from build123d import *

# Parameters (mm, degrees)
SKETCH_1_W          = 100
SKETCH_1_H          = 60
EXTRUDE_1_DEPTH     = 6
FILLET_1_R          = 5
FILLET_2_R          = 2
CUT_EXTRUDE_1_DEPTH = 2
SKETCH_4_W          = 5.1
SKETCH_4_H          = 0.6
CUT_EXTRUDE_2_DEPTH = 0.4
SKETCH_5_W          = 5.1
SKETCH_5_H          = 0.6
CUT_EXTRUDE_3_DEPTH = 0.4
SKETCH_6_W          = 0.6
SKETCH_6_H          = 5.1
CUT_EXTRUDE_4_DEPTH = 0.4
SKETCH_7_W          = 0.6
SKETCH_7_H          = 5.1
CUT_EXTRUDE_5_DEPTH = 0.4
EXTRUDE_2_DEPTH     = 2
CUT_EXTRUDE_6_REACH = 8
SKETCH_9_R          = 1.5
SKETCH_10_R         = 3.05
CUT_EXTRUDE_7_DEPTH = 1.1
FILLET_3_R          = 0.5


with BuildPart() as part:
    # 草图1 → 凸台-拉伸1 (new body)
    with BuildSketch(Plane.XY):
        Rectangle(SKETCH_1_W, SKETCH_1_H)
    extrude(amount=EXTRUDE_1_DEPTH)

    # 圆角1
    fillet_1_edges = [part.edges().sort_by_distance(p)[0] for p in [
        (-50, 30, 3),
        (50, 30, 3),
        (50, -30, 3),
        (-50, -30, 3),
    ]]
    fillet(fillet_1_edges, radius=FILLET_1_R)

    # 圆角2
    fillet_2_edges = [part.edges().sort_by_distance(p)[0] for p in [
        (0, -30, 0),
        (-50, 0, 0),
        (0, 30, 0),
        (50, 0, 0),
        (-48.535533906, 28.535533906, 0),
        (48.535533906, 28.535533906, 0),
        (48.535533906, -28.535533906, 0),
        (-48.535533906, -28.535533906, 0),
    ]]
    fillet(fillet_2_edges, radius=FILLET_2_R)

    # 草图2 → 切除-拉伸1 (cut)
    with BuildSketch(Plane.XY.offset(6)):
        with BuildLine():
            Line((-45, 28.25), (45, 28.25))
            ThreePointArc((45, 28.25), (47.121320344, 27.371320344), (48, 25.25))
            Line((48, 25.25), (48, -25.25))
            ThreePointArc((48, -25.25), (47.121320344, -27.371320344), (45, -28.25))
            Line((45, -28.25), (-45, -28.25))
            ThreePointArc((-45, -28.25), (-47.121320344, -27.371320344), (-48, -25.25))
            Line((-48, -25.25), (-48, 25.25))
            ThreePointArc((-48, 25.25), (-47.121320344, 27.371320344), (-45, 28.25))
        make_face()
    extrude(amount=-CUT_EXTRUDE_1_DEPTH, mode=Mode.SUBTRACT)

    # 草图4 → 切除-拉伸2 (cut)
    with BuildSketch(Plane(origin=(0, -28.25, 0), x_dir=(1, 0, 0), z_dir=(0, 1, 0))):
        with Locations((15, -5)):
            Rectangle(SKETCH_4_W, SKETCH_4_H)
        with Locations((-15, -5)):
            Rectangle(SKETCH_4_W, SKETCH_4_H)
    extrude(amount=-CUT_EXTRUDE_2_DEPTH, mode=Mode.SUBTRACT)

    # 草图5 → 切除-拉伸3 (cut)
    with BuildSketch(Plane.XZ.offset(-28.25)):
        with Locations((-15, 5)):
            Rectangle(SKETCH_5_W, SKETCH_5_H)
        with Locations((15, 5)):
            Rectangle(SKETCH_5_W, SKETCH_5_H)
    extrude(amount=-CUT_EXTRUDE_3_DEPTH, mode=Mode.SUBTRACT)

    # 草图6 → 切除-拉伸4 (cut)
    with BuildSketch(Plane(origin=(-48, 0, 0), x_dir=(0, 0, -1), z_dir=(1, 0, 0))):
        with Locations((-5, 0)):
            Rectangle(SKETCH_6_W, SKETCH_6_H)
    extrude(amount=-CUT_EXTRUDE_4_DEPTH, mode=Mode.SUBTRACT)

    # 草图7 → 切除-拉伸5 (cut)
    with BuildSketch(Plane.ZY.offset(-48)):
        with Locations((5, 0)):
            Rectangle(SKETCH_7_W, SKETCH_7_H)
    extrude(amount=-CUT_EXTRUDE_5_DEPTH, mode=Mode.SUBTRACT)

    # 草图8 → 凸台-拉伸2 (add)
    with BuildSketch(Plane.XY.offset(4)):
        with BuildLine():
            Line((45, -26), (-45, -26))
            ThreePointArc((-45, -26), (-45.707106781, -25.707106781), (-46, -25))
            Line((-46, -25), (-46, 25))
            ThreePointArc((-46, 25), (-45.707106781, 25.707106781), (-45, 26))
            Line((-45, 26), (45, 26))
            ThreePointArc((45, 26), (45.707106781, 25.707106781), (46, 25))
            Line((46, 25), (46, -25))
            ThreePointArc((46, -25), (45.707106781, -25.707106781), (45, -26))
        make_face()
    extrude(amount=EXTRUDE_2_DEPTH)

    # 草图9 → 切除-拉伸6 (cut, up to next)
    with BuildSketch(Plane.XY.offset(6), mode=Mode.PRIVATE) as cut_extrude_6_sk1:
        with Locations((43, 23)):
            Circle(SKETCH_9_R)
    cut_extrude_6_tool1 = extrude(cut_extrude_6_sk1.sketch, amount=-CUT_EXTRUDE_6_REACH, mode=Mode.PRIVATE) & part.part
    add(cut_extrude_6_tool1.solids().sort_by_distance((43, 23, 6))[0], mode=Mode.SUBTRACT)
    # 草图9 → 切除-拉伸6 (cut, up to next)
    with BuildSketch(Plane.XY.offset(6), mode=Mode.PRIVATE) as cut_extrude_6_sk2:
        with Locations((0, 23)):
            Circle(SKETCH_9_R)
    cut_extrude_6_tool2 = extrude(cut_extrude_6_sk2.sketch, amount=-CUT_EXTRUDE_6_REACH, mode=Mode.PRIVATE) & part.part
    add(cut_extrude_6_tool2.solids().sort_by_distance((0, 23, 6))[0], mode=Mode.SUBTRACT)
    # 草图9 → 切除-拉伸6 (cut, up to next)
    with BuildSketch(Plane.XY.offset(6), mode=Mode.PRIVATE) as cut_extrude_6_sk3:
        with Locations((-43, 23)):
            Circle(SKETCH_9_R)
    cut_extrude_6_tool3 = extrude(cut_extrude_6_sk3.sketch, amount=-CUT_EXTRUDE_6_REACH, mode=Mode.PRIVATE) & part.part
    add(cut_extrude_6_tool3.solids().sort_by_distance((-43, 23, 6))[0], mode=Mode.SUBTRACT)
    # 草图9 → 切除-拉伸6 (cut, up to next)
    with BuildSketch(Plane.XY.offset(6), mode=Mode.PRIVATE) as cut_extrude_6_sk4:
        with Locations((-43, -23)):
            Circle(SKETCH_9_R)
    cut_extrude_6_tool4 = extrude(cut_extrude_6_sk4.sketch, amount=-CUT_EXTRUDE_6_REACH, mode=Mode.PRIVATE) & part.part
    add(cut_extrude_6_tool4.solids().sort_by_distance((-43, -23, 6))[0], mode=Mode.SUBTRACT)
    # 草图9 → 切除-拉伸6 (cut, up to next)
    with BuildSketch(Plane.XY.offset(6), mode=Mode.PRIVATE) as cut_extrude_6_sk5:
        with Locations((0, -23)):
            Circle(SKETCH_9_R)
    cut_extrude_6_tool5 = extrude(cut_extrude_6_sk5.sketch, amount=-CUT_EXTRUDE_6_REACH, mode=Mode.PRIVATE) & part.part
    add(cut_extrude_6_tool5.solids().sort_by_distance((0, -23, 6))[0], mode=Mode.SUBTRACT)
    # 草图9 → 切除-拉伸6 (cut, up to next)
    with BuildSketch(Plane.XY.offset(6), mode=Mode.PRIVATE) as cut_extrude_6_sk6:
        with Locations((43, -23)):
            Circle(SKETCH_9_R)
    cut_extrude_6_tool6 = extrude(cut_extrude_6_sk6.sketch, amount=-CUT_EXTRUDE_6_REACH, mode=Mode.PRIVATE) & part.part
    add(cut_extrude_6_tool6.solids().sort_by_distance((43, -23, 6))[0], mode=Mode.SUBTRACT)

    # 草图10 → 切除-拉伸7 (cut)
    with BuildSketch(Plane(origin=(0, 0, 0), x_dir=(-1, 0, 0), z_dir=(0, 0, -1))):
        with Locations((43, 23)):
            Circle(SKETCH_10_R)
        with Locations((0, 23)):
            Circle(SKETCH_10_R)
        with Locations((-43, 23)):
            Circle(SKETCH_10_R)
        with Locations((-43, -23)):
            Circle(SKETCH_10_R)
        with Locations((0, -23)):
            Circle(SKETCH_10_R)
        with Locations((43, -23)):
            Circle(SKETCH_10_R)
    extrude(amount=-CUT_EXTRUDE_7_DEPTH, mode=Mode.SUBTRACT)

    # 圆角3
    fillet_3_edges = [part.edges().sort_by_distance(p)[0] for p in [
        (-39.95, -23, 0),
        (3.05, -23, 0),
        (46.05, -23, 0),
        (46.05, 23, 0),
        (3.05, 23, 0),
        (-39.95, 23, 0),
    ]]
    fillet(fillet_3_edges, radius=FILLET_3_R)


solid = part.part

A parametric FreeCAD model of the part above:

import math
import FreeCAD as App
import Part
import Sketcher
Q = App.Units.Quantity


def edges_at(feature, points):
    """Names of the edges that pass closest to the given points."""
    edges = feature.Shape.Edges
    near = lambda p: min(range(len(edges)), key=lambda i: edges[i].distToShape(Part.Vertex(*p))[0])
    return sorted({f"Edge{near(p) + 1}" for p in points})

doc = App.newDocument("Part")
body = doc.addObject("PartDesign::Body", "Body")

sketch1 = body.newObject("Sketcher::SketchObject", "Sketch")
sketch1.AttachmentSupport = (doc.getObject("XY_Plane"), [""])
sketch1.MapMode = "FlatFace"
sketch1.addGeometry([
    Part.LineSegment(App.Vector(-50, 30, 0), App.Vector(-50, -30, 0)),
    Part.LineSegment(App.Vector(-50, -30, 0), App.Vector(50, -30, 0)),
    Part.LineSegment(App.Vector(50, -30, 0), App.Vector(50, 30, 0)),
    Part.LineSegment(App.Vector(50, 30, 0), App.Vector(-50, 30, 0)),
], False)
sketch1.addConstraint([
    Sketcher.Constraint("Coincident", 0, 2, 1, 1),
    Sketcher.Constraint("Coincident", 1, 2, 2, 1),
    Sketcher.Constraint("Coincident", 2, 2, 3, 1),
    Sketcher.Constraint("Coincident", 3, 2, 0, 1),
    Sketcher.Constraint("Vertical", 0),
    Sketcher.Constraint("Horizontal", 1),
    Sketcher.Constraint("Vertical", 2),
    Sketcher.Constraint("Horizontal", 3),
    Sketcher.Constraint("Symmetric", 0, 2, 2, 2, -1, 1),
    Sketcher.Constraint("DistanceX", 1, 1, 1, 2, Q("100 mm")),
    Sketcher.Constraint("DistanceY", 0, 2, 0, 1, Q("60 mm")),
])
pad1 = body.newObject("PartDesign::Pad", "Pad")
pad1.Profile = sketch1
pad1.Length = 6
doc.recompute()

fillet = body.newObject("PartDesign::Fillet", "Fillet")
fillet.Base = (pad1, edges_at(pad1, [
    (-50, 30, 3),
    (50, 30, 3),
    (50, -30, 3),
    (-50, -30, 3),
]))
fillet.Radius = 5
doc.recompute()

fillet2 = body.newObject("PartDesign::Fillet", "Fillet001")
fillet2.Base = (fillet, edges_at(fillet, [
    (0, -30, 0),
    (-50, 0, 0),
    (0, 30, 0),
    (50, 0, 0),
    (-48.536, 28.536, 0),
    (48.536, 28.536, 0),
    (48.536, -28.536, 0),
    (-48.536, -28.536, 0),
]))
fillet2.Radius = 2

sketch2 = body.newObject("Sketcher::SketchObject", "Sketch001")
sketch2.AttachmentSupport = (doc.getObject("XY_Plane"), [""])
sketch2.MapMode = "FlatFace"
sketch2.AttachmentOffset = App.Placement(App.Vector(0, 0, 6), App.Rotation())
sketch2.addGeometry([
    Part.LineSegment(App.Vector(45, 28.25, 0), App.Vector(-45, 28.25, 0)),
    Part.ArcOfCircle(Part.Circle(App.Vector(-45, 25.25, 0), App.Vector(0, 0, 1), 3), math.radians(90), math.radians(180)),
    Part.LineSegment(App.Vector(-48, 25.25, 0), App.Vector(-48, -25.25, 0)),
    Part.ArcOfCircle(Part.Circle(App.Vector(-45, -25.25, 0), App.Vector(0, 0, 1), 3), math.radians(180), math.radians(270)),
    Part.LineSegment(App.Vector(-45, -28.25, 0), App.Vector(45, -28.25, 0)),
    Part.ArcOfCircle(Part.Circle(App.Vector(45, -25.25, 0), App.Vector(0, 0, 1), 3), math.radians(-90), math.radians(0)),
    Part.LineSegment(App.Vector(48, -25.25, 0), App.Vector(48, 25.25, 0)),
    Part.ArcOfCircle(Part.Circle(App.Vector(45, 25.25, 0), App.Vector(0, 0, 1), 3), math.radians(0), math.radians(90)),
], False)
sketch2.addConstraint([
    Sketcher.Constraint("Tangent", 0, 2, 1, 1),
    Sketcher.Constraint("Tangent", 1, 2, 2, 1),
    Sketcher.Constraint("Tangent", 2, 2, 3, 1),
    Sketcher.Constraint("Tangent", 3, 2, 4, 1),
    Sketcher.Constraint("Tangent", 4, 2, 5, 1),
    Sketcher.Constraint("Tangent", 5, 2, 6, 1),
    Sketcher.Constraint("Tangent", 6, 2, 7, 1),
    Sketcher.Constraint("Tangent", 7, 2, 0, 1),
    Sketcher.Constraint("Horizontal", 0),
    Sketcher.Constraint("Vertical", 2),
    Sketcher.Constraint("Horizontal", 4),
    Sketcher.Constraint("Vertical", 6),
    Sketcher.Constraint("Equal", 1, 3),
    Sketcher.Constraint("Equal", 3, 5),
    Sketcher.Constraint("Equal", 5, 7),
    Sketcher.Constraint("Symmetric", 1, 3, 5, 3, -1, 1),
    Sketcher.Constraint("Radius", 1, Q("3 mm")),
    Sketcher.Constraint("DistanceX", 0, 2, 0, 1, Q("90 mm")),
    Sketcher.Constraint("DistanceY", 2, 2, 2, 1, Q("50.5 mm")),
])
pocket1 = body.newObject("PartDesign::Pocket", "Pocket")
pocket1.Profile = sketch2
pocket1.Length = 2

sketch3 = body.newObject("Sketcher::SketchObject", "Sketch002")
sketch3.AttachmentSupport = (doc.getObject("XZ_Plane"), [""])
sketch3.MapMode = "FlatFace"
sketch3.AttachmentOffset = App.Placement(App.Vector(0, 0, 28.25), App.Rotation())
sketch3.addGeometry([
    Part.LineSegment(App.Vector(12.45, 4.7, 0), App.Vector(12.45, 5.3, 0)),
    Part.LineSegment(App.Vector(12.45, 5.3, 0), App.Vector(17.55, 5.3, 0)),
    Part.LineSegment(App.Vector(17.55, 5.3, 0), App.Vector(17.55, 4.7, 0)),
    Part.LineSegment(App.Vector(17.55, 4.7, 0), App.Vector(12.45, 4.7, 0)),
    Part.LineSegment(App.Vector(-17.55, 4.7, 0), App.Vector(-17.55, 5.3, 0)),
    Part.LineSegment(App.Vector(-17.55, 5.3, 0), App.Vector(-12.45, 5.3, 0)),
    Part.LineSegment(App.Vector(-12.45, 5.3, 0), App.Vector(-12.45, 4.7, 0)),
    Part.LineSegment(App.Vector(-12.45, 4.7, 0), App.Vector(-17.55, 4.7, 0)),
], False)
sketch3.addConstraint([
    Sketcher.Constraint("Coincident", 0, 2, 1, 1),
    Sketcher.Constraint("Coincident", 1, 2, 2, 1),
    Sketcher.Constraint("Coincident", 2, 2, 3, 1),
    Sketcher.Constraint("Coincident", 3, 2, 0, 1),
    Sketcher.Constraint("Coincident", 4, 2, 5, 1),
    Sketcher.Constraint("Coincident", 5, 2, 6, 1),
    Sketcher.Constraint("Coincident", 6, 2, 7, 1),
    Sketcher.Constraint("Coincident", 7, 2, 4, 1),
    Sketcher.Constraint("Vertical", 0),
    Sketcher.Constraint("Horizontal", 1),
    Sketcher.Constraint("Vertical", 2),
    Sketcher.Constraint("Horizontal", 3),
    Sketcher.Constraint("Vertical", 4),
    Sketcher.Constraint("Horizontal", 5),
    Sketcher.Constraint("Vertical", 6),
    Sketcher.Constraint("Horizontal", 7),
    Sketcher.Constraint("Symmetric", 1, 2, 4, 2, -2),
    Sketcher.Constraint("Symmetric", 3, 2, 6, 2, -2),
    Sketcher.Constraint("DistanceX", 1, 1, 1, 2, Q("5.1 mm")),
    Sketcher.Constraint("DistanceY", 0, 1, 0, 2, Q("0.6 mm")),
    Sketcher.Constraint("DistanceX", 4, 2, 0, 2, Q("30 mm")),
    Sketcher.Constraint("DistanceY", -1, 1, 0, 2, Q("5.3 mm")),
])
pocket2 = body.newObject("PartDesign::Pocket", "Pocket001")
pocket2.Profile = sketch3
pocket2.Length = 0.4
pocket2.Reversed = True

sketch4 = body.newObject("Sketcher::SketchObject", "Sketch003")
sketch4.AttachmentSupport = (doc.getObject("XZ_Plane"), [""])
sketch4.MapMode = "FlatFace"
sketch4.AttachmentOffset = App.Placement(App.Vector(0, 0, -28.25), App.Rotation())
sketch4.addGeometry([
    Part.LineSegment(App.Vector(-17.55, 5.3, 0), App.Vector(-17.55, 4.7, 0)),
    Part.LineSegment(App.Vector(-17.55, 4.7, 0), App.Vector(-12.45, 4.7, 0)),
    Part.LineSegment(App.Vector(-12.45, 4.7, 0), App.Vector(-12.45, 5.3, 0)),
    Part.LineSegment(App.Vector(-12.45, 5.3, 0), App.Vector(-17.55, 5.3, 0)),
    Part.LineSegment(App.Vector(12.45, 5.3, 0), App.Vector(12.45, 4.7, 0)),
    Part.LineSegment(App.Vector(12.45, 4.7, 0), App.Vector(17.55, 4.7, 0)),
    Part.LineSegment(App.Vector(17.55, 4.7, 0), App.Vector(17.55, 5.3, 0)),
    Part.LineSegment(App.Vector(17.55, 5.3, 0), App.Vector(12.45, 5.3, 0)),
], False)
sketch4.addConstraint([
    Sketcher.Constraint("Coincident", 0, 2, 1, 1),
    Sketcher.Constraint("Coincident", 1, 2, 2, 1),
    Sketcher.Constraint("Coincident", 2, 2, 3, 1),
    Sketcher.Constraint("Coincident", 3, 2, 0, 1),
    Sketcher.Constraint("Coincident", 4, 2, 5, 1),
    Sketcher.Constraint("Coincident", 5, 2, 6, 1),
    Sketcher.Constraint("Coincident", 6, 2, 7, 1),
    Sketcher.Constraint("Coincident", 7, 2, 4, 1),
    Sketcher.Constraint("Vertical", 0),
    Sketcher.Constraint("Horizontal", 1),
    Sketcher.Constraint("Vertical", 2),
    Sketcher.Constraint("Horizontal", 3),
    Sketcher.Constraint("Vertical", 4),
    Sketcher.Constraint("Horizontal", 5),
    Sketcher.Constraint("Vertical", 6),
    Sketcher.Constraint("Horizontal", 7),
    Sketcher.Constraint("Symmetric", 1, 2, 4, 2, -2),
    Sketcher.Constraint("Symmetric", 3, 2, 6, 2, -2),
    Sketcher.Constraint("DistanceX", 1, 1, 1, 2, Q("5.1 mm")),
    Sketcher.Constraint("DistanceY", 0, 2, 0, 1, Q("0.6 mm")),
    Sketcher.Constraint("DistanceX", 0, 2, 4, 2, Q("30 mm")),
    Sketcher.Constraint("DistanceY", -1, 1, 0, 2, Q("4.7 mm")),
])
pocket3 = body.newObject("PartDesign::Pocket", "Pocket002")
pocket3.Profile = sketch4
pocket3.Length = 0.4

sketch5 = body.newObject("Sketcher::SketchObject", "Sketch004")
sketch5.AttachmentSupport = (doc.getObject("YZ_Plane"), [""])
sketch5.MapMode = "FlatFace"
sketch5.AttachmentOffset = App.Placement(App.Vector(0, 0, -48), App.Rotation())
sketch5.addGeometry([
    Part.LineSegment(App.Vector(2.55, 5.3, 0), App.Vector(-2.55, 5.3, 0)),
    Part.LineSegment(App.Vector(-2.55, 5.3, 0), App.Vector(-2.55, 4.7, 0)),
    Part.LineSegment(App.Vector(-2.55, 4.7, 0), App.Vector(2.55, 4.7, 0)),
    Part.LineSegment(App.Vector(2.55, 4.7, 0), App.Vector(2.55, 5.3, 0)),
], False)
sketch5.addConstraint([
    Sketcher.Constraint("Coincident", 0, 2, 1, 1),
    Sketcher.Constraint("Coincident", 1, 2, 2, 1),
    Sketcher.Constraint("Coincident", 2, 2, 3, 1),
    Sketcher.Constraint("Coincident", 3, 2, 0, 1),
    Sketcher.Constraint("Horizontal", 0),
    Sketcher.Constraint("Vertical", 1),
    Sketcher.Constraint("Horizontal", 2),
    Sketcher.Constraint("Vertical", 3),
    Sketcher.Constraint("DistanceX", 0, 2, 0, 1, Q("5.1 mm")),
    Sketcher.Constraint("DistanceY", 1, 2, 1, 1, Q("0.6 mm")),
    Sketcher.Constraint("DistanceY", -1, 1, 0, 2, Q("5.3 mm")),
    Sketcher.Constraint("DistanceX", 0, 2, -1, 1, Q("2.55 mm")),
])
pocket4 = body.newObject("PartDesign::Pocket", "Pocket003")
pocket4.Profile = sketch5
pocket4.Length = 0.4

sketch6 = body.newObject("Sketcher::SketchObject", "Sketch005")
sketch6.AttachmentSupport = (doc.getObject("YZ_Plane"), [""])
sketch6.MapMode = "FlatFace"
sketch6.AttachmentOffset = App.Placement(App.Vector(0, 0, 48), App.Rotation())
sketch6.addGeometry([
    Part.LineSegment(App.Vector(2.55, 4.7, 0), App.Vector(-2.55, 4.7, 0)),
    Part.LineSegment(App.Vector(-2.55, 4.7, 0), App.Vector(-2.55, 5.3, 0)),
    Part.LineSegment(App.Vector(-2.55, 5.3, 0), App.Vector(2.55, 5.3, 0)),
    Part.LineSegment(App.Vector(2.55, 5.3, 0), App.Vector(2.55, 4.7, 0)),
], False)
sketch6.addConstraint([
    Sketcher.Constraint("Coincident", 0, 2, 1, 1),
    Sketcher.Constraint("Coincident", 1, 2, 2, 1),
    Sketcher.Constraint("Coincident", 2, 2, 3, 1),
    Sketcher.Constraint("Coincident", 3, 2, 0, 1),
    Sketcher.Constraint("Horizontal", 0),
    Sketcher.Constraint("Vertical", 1),
    Sketcher.Constraint("Horizontal", 2),
    Sketcher.Constraint("Vertical", 3),
    Sketcher.Constraint("DistanceX", 0, 2, 0, 1, Q("5.1 mm")),
    Sketcher.Constraint("DistanceY", 1, 1, 1, 2, Q("0.6 mm")),
    Sketcher.Constraint("DistanceY", -1, 1, 0, 2, Q("4.7 mm")),
    Sketcher.Constraint("DistanceX", 0, 2, -1, 1, Q("2.55 mm")),
])
pocket5 = body.newObject("PartDesign::Pocket", "Pocket004")
pocket5.Profile = sketch6
pocket5.Length = 0.4
pocket5.Reversed = True

sketch7 = body.newObject("Sketcher::SketchObject", "Sketch006")
sketch7.AttachmentSupport = (doc.getObject("XY_Plane"), [""])
sketch7.MapMode = "FlatFace"
sketch7.AttachmentOffset = App.Placement(App.Vector(0, 0, 4), App.Rotation())
sketch7.addGeometry([
    Part.LineSegment(App.Vector(-45, -26, 0), App.Vector(45, -26, 0)),
    Part.ArcOfCircle(Part.Circle(App.Vector(45, -25, 0), App.Vector(0, 0, 1), 1), math.radians(-90), math.radians(0)),
    Part.LineSegment(App.Vector(46, -25, 0), App.Vector(46, 25, 0)),
    Part.ArcOfCircle(Part.Circle(App.Vector(45, 25, 0), App.Vector(0, 0, 1), 1), math.radians(0), math.radians(90)),
    Part.LineSegment(App.Vector(45, 26, 0), App.Vector(-45, 26, 0)),
    Part.ArcOfCircle(Part.Circle(App.Vector(-45, 25, 0), App.Vector(0, 0, 1), 1), math.radians(90), math.radians(180)),
    Part.LineSegment(App.Vector(-46, 25, 0), App.Vector(-46, -25, 0)),
    Part.ArcOfCircle(Part.Circle(App.Vector(-45, -25, 0), App.Vector(0, 0, 1), 1), math.radians(-180), math.radians(-90)),
], False)
sketch7.addConstraint([
    Sketcher.Constraint("Tangent", 0, 2, 1, 1),
    Sketcher.Constraint("Tangent", 1, 2, 2, 1),
    Sketcher.Constraint("Tangent", 2, 2, 3, 1),
    Sketcher.Constraint("Tangent", 3, 2, 4, 1),
    Sketcher.Constraint("Tangent", 4, 2, 5, 1),
    Sketcher.Constraint("Tangent", 5, 2, 6, 1),
    Sketcher.Constraint("Tangent", 6, 2, 7, 1),
    Sketcher.Constraint("Tangent", 7, 2, 0, 1),
    Sketcher.Constraint("Horizontal", 0),
    Sketcher.Constraint("Vertical", 2),
    Sketcher.Constraint("Horizontal", 4),
    Sketcher.Constraint("Vertical", 6),
    Sketcher.Constraint("Equal", 1, 3),
    Sketcher.Constraint("Equal", 3, 5),
    Sketcher.Constraint("Equal", 5, 7),
    Sketcher.Constraint("Symmetric", 1, 3, 5, 3, -1, 1),
    Sketcher.Constraint("Radius", 1, Q("1 mm")),
    Sketcher.Constraint("DistanceX", 0, 1, 0, 2, Q("90 mm")),
    Sketcher.Constraint("DistanceY", 2, 1, 2, 2, Q("50 mm")),
])
pad2 = body.newObject("PartDesign::Pad", "Pad001")
pad2.Profile = sketch7
pad2.Length = 2

sketch8 = body.newObject("Sketcher::SketchObject", "Sketch007")
sketch8.AttachmentSupport = (doc.getObject("XY_Plane"), [""])
sketch8.MapMode = "FlatFace"
sketch8.AttachmentOffset = App.Placement(App.Vector(0, 0, 6), App.Rotation())
sketch8.addGeometry(Part.Circle(App.Vector(43, 23, 0), App.Vector(0, 0, 1), 1.5), False)
sketch8.addConstraint([
    Sketcher.Constraint("Diameter", 0, Q("3 mm")),
    Sketcher.Constraint("DistanceX", -1, 1, 0, 3, Q("43 mm")),
    Sketcher.Constraint("DistanceY", -1, 1, 0, 3, Q("23 mm")),
])
pocket6 = body.newObject("PartDesign::Pocket", "Pocket005")
pocket6.Profile = sketch8
pocket6.Type = "UpToFirst"

sketch9 = body.newObject("Sketcher::SketchObject", "Sketch008")
sketch9.AttachmentSupport = (doc.getObject("XY_Plane"), [""])
sketch9.MapMode = "FlatFace"
sketch9.AttachmentOffset = App.Placement(App.Vector(0, 0, 6), App.Rotation())
sketch9.addGeometry(Part.Circle(App.Vector(0, 23, 0), App.Vector(0, 0, 1), 1.5), False)
sketch9.addConstraint([
    Sketcher.Constraint("PointOnObject", 0, 3, -2),
    Sketcher.Constraint("Diameter", 0, Q("3 mm")),
    Sketcher.Constraint("DistanceY", -1, 1, 0, 3, Q("23 mm")),
])
pocket7 = body.newObject("PartDesign::Pocket", "Pocket006")
pocket7.Profile = sketch9
pocket7.Type = "UpToFirst"

sketch10 = body.newObject("Sketcher::SketchObject", "Sketch009")
sketch10.AttachmentSupport = (doc.getObject("XY_Plane"), [""])
sketch10.MapMode = "FlatFace"
sketch10.AttachmentOffset = App.Placement(App.Vector(0, 0, 6), App.Rotation())
sketch10.addGeometry(Part.Circle(App.Vector(-43, 23, 0), App.Vector(0, 0, 1), 1.5), False)
sketch10.addConstraint([
    Sketcher.Constraint("Diameter", 0, Q("3 mm")),
    Sketcher.Constraint("DistanceX", 0, 3, -1, 1, Q("43 mm")),
    Sketcher.Constraint("DistanceY", -1, 1, 0, 3, Q("23 mm")),
])
pocket8 = body.newObject("PartDesign::Pocket", "Pocket007")
pocket8.Profile = sketch10
pocket8.Type = "UpToFirst"

sketch11 = body.newObject("Sketcher::SketchObject", "Sketch010")
sketch11.AttachmentSupport = (doc.getObject("XY_Plane"), [""])
sketch11.MapMode = "FlatFace"
sketch11.AttachmentOffset = App.Placement(App.Vector(0, 0, 6), App.Rotation())
sketch11.addGeometry(Part.Circle(App.Vector(-43, -23, 0), App.Vector(0, 0, 1), 1.5), False)
sketch11.addConstraint([
    Sketcher.Constraint("Diameter", 0, Q("3 mm")),
    Sketcher.Constraint("DistanceX", 0, 3, -1, 1, Q("43 mm")),
    Sketcher.Constraint("DistanceY", 0, 3, -1, 1, Q("23 mm")),
])
pocket9 = body.newObject("PartDesign::Pocket", "Pocket008")
pocket9.Profile = sketch11
pocket9.Type = "UpToFirst"

sketch12 = body.newObject("Sketcher::SketchObject", "Sketch011")
sketch12.AttachmentSupport = (doc.getObject("XY_Plane"), [""])
sketch12.MapMode = "FlatFace"
sketch12.AttachmentOffset = App.Placement(App.Vector(0, 0, 6), App.Rotation())
sketch12.addGeometry(Part.Circle(App.Vector(0, -23, 0), App.Vector(0, 0, 1), 1.5), False)
sketch12.addConstraint([
    Sketcher.Constraint("PointOnObject", 0, 3, -2),
    Sketcher.Constraint("Diameter", 0, Q("3 mm")),
    Sketcher.Constraint("DistanceY", 0, 3, -1, 1, Q("23 mm")),
])
pocket10 = body.newObject("PartDesign::Pocket", "Pocket009")
pocket10.Profile = sketch12
pocket10.Type = "UpToFirst"

sketch13 = body.newObject("Sketcher::SketchObject", "Sketch012")
sketch13.AttachmentSupport = (doc.getObject("XY_Plane"), [""])
sketch13.MapMode = "FlatFace"
sketch13.AttachmentOffset = App.Placement(App.Vector(0, 0, 6), App.Rotation())
sketch13.addGeometry(Part.Circle(App.Vector(43, -23, 0), App.Vector(0, 0, 1), 1.5), False)
sketch13.addConstraint([
    Sketcher.Constraint("Diameter", 0, Q("3 mm")),
    Sketcher.Constraint("DistanceX", -1, 1, 0, 3, Q("43 mm")),
    Sketcher.Constraint("DistanceY", 0, 3, -1, 1, Q("23 mm")),
])
pocket11 = body.newObject("PartDesign::Pocket", "Pocket010")
pocket11.Profile = sketch13
pocket11.Type = "UpToFirst"

sketch14 = body.newObject("Sketcher::SketchObject", "Sketch013")
sketch14.AttachmentSupport = (doc.getObject("XY_Plane"), [""])
sketch14.MapMode = "FlatFace"
sketch14.addGeometry([
    Part.Circle(App.Vector(-43, 23, 0), App.Vector(0, 0, 1), 3.05),
    Part.Circle(App.Vector(0, 23, 0), App.Vector(0, 0, 1), 3.05),
    Part.Circle(App.Vector(43, 23, 0), App.Vector(0, 0, 1), 3.05),
    Part.Circle(App.Vector(43, -23, 0), App.Vector(0, 0, 1), 3.05),
    Part.Circle(App.Vector(0, -23, 0), App.Vector(0, 0, 1), 3.05),
    Part.Circle(App.Vector(-43, -23, 0), App.Vector(0, 0, 1), 3.05),
], False)
sketch14.addConstraint([
    Sketcher.Constraint("Equal", 0, 1),
    Sketcher.Constraint("Equal", 1, 2),
    Sketcher.Constraint("Equal", 2, 3),
    Sketcher.Constraint("Equal", 3, 4),
    Sketcher.Constraint("Equal", 4, 5),
    Sketcher.Constraint("Symmetric", 0, 3, 3, 3, -1, 1),
    Sketcher.Constraint("Symmetric", 1, 3, 4, 3, -1, 1),
    Sketcher.Constraint("Symmetric", 2, 3, 5, 3, -1, 1),
    Sketcher.Constraint("Symmetric", 0, 3, 2, 3, -2),
    Sketcher.Constraint("PointOnObject", 1, 3, -2),
    Sketcher.Constraint("Horizontal", 0, 3, 1, 3),
    Sketcher.Constraint("Diameter", 0, Q("6.1 mm")),
    Sketcher.Constraint("DistanceX", 0, 3, -1, 1, Q("43 mm")),
    Sketcher.Constraint("DistanceY", -1, 1, 0, 3, Q("23 mm")),
])
pocket12 = body.newObject("PartDesign::Pocket", "Pocket011")
pocket12.Profile = sketch14
pocket12.Length = 1.1
pocket12.Reversed = True
doc.recompute()

fillet3 = body.newObject("PartDesign::Fillet", "Fillet002")
fillet3.Base = (pocket12, edges_at(pocket12, [
    (-39.95, -23, 0),
    (3.05, -23, 0),
    (46.05, -23, 0),
    (46.05, 23, 0),
    (3.05, 23, 0),
    (-39.95, 23, 0),
]))
fillet3.Radius = 0.5

doc.recompute()
